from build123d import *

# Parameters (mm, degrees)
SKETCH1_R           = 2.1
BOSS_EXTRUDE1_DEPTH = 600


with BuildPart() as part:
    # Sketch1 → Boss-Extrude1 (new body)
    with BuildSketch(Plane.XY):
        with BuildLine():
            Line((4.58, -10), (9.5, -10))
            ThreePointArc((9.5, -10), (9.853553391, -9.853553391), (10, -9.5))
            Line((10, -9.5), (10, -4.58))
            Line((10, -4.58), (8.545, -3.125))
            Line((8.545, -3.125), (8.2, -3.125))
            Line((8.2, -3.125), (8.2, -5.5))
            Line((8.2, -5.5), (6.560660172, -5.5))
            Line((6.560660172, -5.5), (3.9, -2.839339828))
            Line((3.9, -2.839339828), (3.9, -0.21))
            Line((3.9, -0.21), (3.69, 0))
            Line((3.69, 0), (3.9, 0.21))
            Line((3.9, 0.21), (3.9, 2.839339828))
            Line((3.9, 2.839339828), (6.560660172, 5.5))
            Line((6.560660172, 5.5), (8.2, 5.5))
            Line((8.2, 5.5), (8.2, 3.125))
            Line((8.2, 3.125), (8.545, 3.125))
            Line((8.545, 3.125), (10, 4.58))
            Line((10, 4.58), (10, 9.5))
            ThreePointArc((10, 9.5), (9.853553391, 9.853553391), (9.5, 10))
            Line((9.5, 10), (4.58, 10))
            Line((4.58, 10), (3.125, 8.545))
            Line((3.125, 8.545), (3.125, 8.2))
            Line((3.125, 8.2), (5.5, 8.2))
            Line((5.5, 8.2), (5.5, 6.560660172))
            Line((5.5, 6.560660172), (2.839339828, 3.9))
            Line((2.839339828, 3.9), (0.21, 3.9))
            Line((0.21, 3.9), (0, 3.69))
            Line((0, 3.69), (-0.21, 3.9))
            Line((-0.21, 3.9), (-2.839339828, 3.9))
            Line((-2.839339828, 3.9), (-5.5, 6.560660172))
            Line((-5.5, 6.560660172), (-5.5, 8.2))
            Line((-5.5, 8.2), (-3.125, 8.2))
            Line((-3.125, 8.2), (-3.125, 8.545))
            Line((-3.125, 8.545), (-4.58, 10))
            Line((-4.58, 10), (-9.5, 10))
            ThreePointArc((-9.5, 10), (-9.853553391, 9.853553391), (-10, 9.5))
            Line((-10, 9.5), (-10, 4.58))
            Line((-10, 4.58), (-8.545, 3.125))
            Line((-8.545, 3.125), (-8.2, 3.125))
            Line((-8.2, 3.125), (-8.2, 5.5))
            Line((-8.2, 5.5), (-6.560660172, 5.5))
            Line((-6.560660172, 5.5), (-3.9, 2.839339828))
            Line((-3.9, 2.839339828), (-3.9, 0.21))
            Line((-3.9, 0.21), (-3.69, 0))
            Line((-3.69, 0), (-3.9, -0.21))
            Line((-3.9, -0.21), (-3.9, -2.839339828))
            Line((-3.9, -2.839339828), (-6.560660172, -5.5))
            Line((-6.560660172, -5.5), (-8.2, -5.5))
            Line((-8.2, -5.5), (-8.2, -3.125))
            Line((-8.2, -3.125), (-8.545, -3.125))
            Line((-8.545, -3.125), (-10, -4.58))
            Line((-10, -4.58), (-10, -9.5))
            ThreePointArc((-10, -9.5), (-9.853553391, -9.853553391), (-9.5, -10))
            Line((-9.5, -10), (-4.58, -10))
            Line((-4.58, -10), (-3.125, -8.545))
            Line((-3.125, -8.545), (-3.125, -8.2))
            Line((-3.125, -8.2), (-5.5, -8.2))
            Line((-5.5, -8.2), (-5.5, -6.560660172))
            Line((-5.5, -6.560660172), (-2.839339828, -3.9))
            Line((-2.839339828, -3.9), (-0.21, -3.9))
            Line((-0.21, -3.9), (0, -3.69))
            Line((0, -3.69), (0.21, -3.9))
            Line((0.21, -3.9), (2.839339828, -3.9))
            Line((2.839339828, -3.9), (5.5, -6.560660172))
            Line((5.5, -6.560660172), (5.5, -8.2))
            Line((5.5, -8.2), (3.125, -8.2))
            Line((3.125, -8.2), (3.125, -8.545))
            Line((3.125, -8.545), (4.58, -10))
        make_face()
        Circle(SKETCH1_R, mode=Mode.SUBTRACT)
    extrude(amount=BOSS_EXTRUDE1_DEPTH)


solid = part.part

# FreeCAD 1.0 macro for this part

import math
import FreeCAD as App
import Part
import Sketcher
from FreeCAD import Vector

doc = App.newDocument("Part")
body = doc.addObject("PartDesign::Body", "Body")

# Sketch on XY plane
sketch1 = doc.addObject("Sketcher::SketchObject", "Sketch")
body.addObject(sketch1)
sketch1.AttachmentSupport = (doc.XY_Plane, [""])
sketch1.MapMode = "FlatFace"
sketch1.addGeometry([
    Part.LineSegment(Vector(4.58, -10, 0), Vector(9.5, -10, 0)),  # 0
    Part.ArcOfCircle(Part.Circle(Vector(9.5, -9.5, 0), Vector(0, 0, 1), 0.5), math.radians(-90), math.radians(0)),  # 1
    Part.LineSegment(Vector(10, -9.5, 0), Vector(10, -4.58, 0)),  # 2
    Part.LineSegment(Vector(10, -4.58, 0), Vector(8.54, -3.12, 0)),  # 3
    Part.LineSegment(Vector(8.54, -3.12, 0), Vector(8.2, -3.12, 0)),  # 4
    Part.LineSegment(Vector(8.2, -3.12, 0), Vector(8.2, -5.5, 0)),  # 5
    Part.LineSegment(Vector(8.2, -5.5, 0), Vector(6.56, -5.5, 0)),  # 6
    Part.LineSegment(Vector(6.56, -5.5, 0), Vector(3.9, -2.84, 0)),  # 7
    Part.LineSegment(Vector(3.9, -2.84, 0), Vector(3.9, -0.21, 0)),  # 8
    Part.LineSegment(Vector(3.9, -0.21, 0), Vector(3.69, 0, 0)),  # 9
    Part.LineSegment(Vector(3.69, 0, 0), Vector(3.9, 0.21, 0)),  # 10
    Part.LineSegment(Vector(3.9, 0.21, 0), Vector(3.9, 2.84, 0)),  # 11
    Part.LineSegment(Vector(3.9, 2.84, 0), Vector(6.56, 5.5, 0)),  # 12
    Part.LineSegment(Vector(6.56, 5.5, 0), Vector(8.2, 5.5, 0)),  # 13
    Part.LineSegment(Vector(8.2, 5.5, 0), Vector(8.2, 3.12, 0)),  # 14
    Part.LineSegment(Vector(8.2, 3.12, 0), Vector(8.54, 3.12, 0)),  # 15
    Part.LineSegment(Vector(8.54, 3.12, 0), Vector(10, 4.58, 0)),  # 16
    Part.LineSegment(Vector(10, 4.58, 0), Vector(10, 9.5, 0)),  # 17
    Part.ArcOfCircle(Part.Circle(Vector(9.5, 9.5, 0), Vector(0, 0, 1), 0.5), math.radians(0), math.radians(90)),  # 18
    Part.LineSegment(Vector(9.5, 10, 0), Vector(4.58, 10, 0)),  # 19
    Part.LineSegment(Vector(4.58, 10, 0), Vector(3.12, 8.54, 0)),  # 20
    Part.LineSegment(Vector(3.12, 8.54, 0), Vector(3.12, 8.2, 0)),  # 21
    Part.LineSegment(Vector(3.12, 8.2, 0), Vector(5.5, 8.2, 0)),  # 22
    Part.LineSegment(Vector(5.5, 8.2, 0), Vector(5.5, 6.56, 0)),  # 23
    Part.LineSegment(Vector(5.5, 6.56, 0), Vector(2.84, 3.9, 0)),  # 24
    Part.LineSegment(Vector(2.84, 3.9, 0), Vector(0.21, 3.9, 0)),  # 25
    Part.LineSegment(Vector(0.21, 3.9, 0), Vector(0, 3.69, 0)),  # 26
    Part.LineSegment(Vector(0, 3.69, 0), Vector(-0.21, 3.9, 0)),  # 27
    Part.LineSegment(Vector(-0.21, 3.9, 0), Vector(-2.84, 3.9, 0)),  # 28
    Part.LineSegment(Vector(-2.84, 3.9, 0), Vector(-5.5, 6.56, 0)),  # 29
    Part.LineSegment(Vector(-5.5, 6.56, 0), Vector(-5.5, 8.2, 0)),  # 30
    Part.LineSegment(Vector(-5.5, 8.2, 0), Vector(-3.12, 8.2, 0)),  # 31
    Part.LineSegment(Vector(-3.12, 8.2, 0), Vector(-3.12, 8.54, 0)),  # 32
    Part.LineSegment(Vector(-3.12, 8.54, 0), Vector(-4.58, 10, 0)),  # 33
    Part.LineSegment(Vector(-4.58, 10, 0), Vector(-9.5, 10, 0)),  # 34
    Part.ArcOfCircle(Part.Circle(Vector(-9.5, 9.5, 0), Vector(0, 0, 1), 0.5), math.radians(90), math.radians(180)),  # 35
    Part.LineSegment(Vector(-10, 9.5, 0), Vector(-10, 4.58, 0)),  # 36
    Part.LineSegment(Vector(-10, 4.58, 0), Vector(-8.54, 3.12, 0)),  # 37
    Part.LineSegment(Vector(-8.54, 3.12, 0), Vector(-8.2, 3.12, 0)),  # 38
    Part.LineSegment(Vector(-8.2, 3.12, 0), Vector(-8.2, 5.5, 0)),  # 39
    Part.LineSegment(Vector(-8.2, 5.5, 0), Vector(-6.56, 5.5, 0)),  # 40
    Part.LineSegment(Vector(-6.56, 5.5, 0), Vector(-3.9, 2.84, 0)),  # 41
    Part.LineSegment(Vector(-3.9, 2.84, 0), Vector(-3.9, 0.21, 0)),  # 42
    Part.LineSegment(Vector(-3.9, 0.21, 0), Vector(-3.69, 0, 0)),  # 43
    Part.LineSegment(Vector(-3.69, 0, 0), Vector(-3.9, -0.21, 0)),  # 44
    Part.LineSegment(Vector(-3.9, -0.21, 0), Vector(-3.9, -2.84, 0)),  # 45
    Part.LineSegment(Vector(-3.9, -2.84, 0), Vector(-6.56, -5.5, 0)),  # 46
    Part.LineSegment(Vector(-6.56, -5.5, 0), Vector(-8.2, -5.5, 0)),  # 47
    Part.LineSegment(Vector(-8.2, -5.5, 0), Vector(-8.2, -3.12, 0)),  # 48
    Part.LineSegment(Vector(-8.2, -3.12, 0), Vector(-8.54, -3.12, 0)),  # 49
    Part.LineSegment(Vector(-8.54, -3.12, 0), Vector(-10, -4.58, 0)),  # 50
    Part.LineSegment(Vector(-10, -4.58, 0), Vector(-10, -9.5, 0)),  # 51
    Part.ArcOfCircle(Part.Circle(Vector(-9.5, -9.5, 0), Vector(0, 0, 1), 0.5), math.radians(180), math.radians(270)),  # 52
    Part.LineSegment(Vector(-9.5, -10, 0), Vector(-4.58, -10, 0)),  # 53
    Part.LineSegment(Vector(-4.58, -10, 0), Vector(-3.12, -8.54, 0)),  # 54
    Part.LineSegment(Vector(-3.12, -8.54, 0), Vector(-3.12, -8.2, 0)),  # 55
    Part.LineSegment(Vector(-3.12, -8.2, 0), Vector(-5.5, -8.2, 0)),  # 56
    Part.LineSegment(Vector(-5.5, -8.2, 0), Vector(-5.5, -6.56, 0)),  # 57
    Part.LineSegment(Vector(-5.5, -6.56, 0), Vector(-2.84, -3.9, 0)),  # 58
    Part.LineSegment(Vector(-2.84, -3.9, 0), Vector(-0.21, -3.9, 0)),  # 59
    Part.LineSegment(Vector(-0.21, -3.9, 0), Vector(0, -3.69, 0)),  # 60
    Part.LineSegment(Vector(0, -3.69, 0), Vector(0.21, -3.9, 0)),  # 61
    Part.LineSegment(Vector(0.21, -3.9, 0), Vector(2.84, -3.9, 0)),  # 62
    Part.LineSegment(Vector(2.84, -3.9, 0), Vector(5.5, -6.56, 0)),  # 63
    Part.LineSegment(Vector(5.5, -6.56, 0), Vector(5.5, -8.2, 0)),  # 64
    Part.LineSegment(Vector(5.5, -8.2, 0), Vector(3.12, -8.2, 0)),  # 65
    Part.LineSegment(Vector(3.12, -8.2, 0), Vector(3.12, -8.54, 0)),  # 66
    Part.LineSegment(Vector(3.12, -8.54, 0), Vector(4.58, -10, 0)),  # 67
    Part.Circle(Vector(0, 0, 0), Vector(0, 0, 1), 2.1),  # 68
], False)
sketch1.addConstraint([
    Sketcher.Constraint("Tangent", 0, 2, 1, 1),
    Sketcher.Constraint("Tangent", 1, 2, 2, 1),
    Sketcher.Constraint("Coincident", 2, 2, 3, 1),
    Sketcher.Constraint("Coincident", 3, 2, 4, 1),
    Sketcher.Constraint("Coincident", 4, 2, 5, 1),
    Sketcher.Constraint("Coincident", 5, 2, 6, 1),
    Sketcher.Constraint("Coincident", 6, 2, 7, 1),
    Sketcher.Constraint("Coincident", 7, 2, 8, 1),
    Sketcher.Constraint("Coincident", 8, 2, 9, 1),
    Sketcher.Constraint("Coincident", 9, 2, 10, 1),
    Sketcher.Constraint("Coincident", 10, 2, 11, 1),
    Sketcher.Constraint("Coincident", 11, 2, 12, 1),
    Sketcher.Constraint("Coincident", 12, 2, 13, 1),
    Sketcher.Constraint("Coincident", 13, 2, 14, 1),
    Sketcher.Constraint("Coincident", 14, 2, 15, 1),
    Sketcher.Constraint("Coincident", 15, 2, 16, 1),
    Sketcher.Constraint("Coincident", 16, 2, 17, 1),
    Sketcher.Constraint("Tangent", 17, 2, 18, 1),
    Sketcher.Constraint("Tangent", 18, 2, 19, 1),
    Sketcher.Constraint("Coincident", 19, 2, 20, 1),
    Sketcher.Constraint("Coincident", 20, 2, 21, 1),
    Sketcher.Constraint("Coincident", 21, 2, 22, 1),
    Sketcher.Constraint("Coincident", 22, 2, 23, 1),
    Sketcher.Constraint("Coincident", 23, 2, 24, 1),
    Sketcher.Constraint("Coincident", 24, 2, 25, 1),
    Sketcher.Constraint("Coincident", 25, 2, 26, 1),
    Sketcher.Constraint("Coincident", 26, 2, 27, 1),
    Sketcher.Constraint("Coincident", 27, 2, 28, 1),
    Sketcher.Constraint("Coincident", 28, 2, 29, 1),
    Sketcher.Constraint("Coincident", 29, 2, 30, 1),
    Sketcher.Constraint("Coincident", 30, 2, 31, 1),
    Sketcher.Constraint("Coincident", 31, 2, 32, 1),
    Sketcher.Constraint("Coincident", 32, 2, 33, 1),
    Sketcher.Constraint("Coincident", 33, 2, 34, 1),
    Sketcher.Constraint("Tangent", 34, 2, 35, 1),
    Sketcher.Constraint("Tangent", 35, 2, 36, 1),
    Sketcher.Constraint("Coincident", 36, 2, 37, 1),
    Sketcher.Constraint("Coincident", 37, 2, 38, 1),
    Sketcher.Constraint("Coincident", 38, 2, 39, 1),
    Sketcher.Constraint("Coincident", 39, 2, 40, 1),
    Sketcher.Constraint("Coincident", 40, 2, 41, 1),
    Sketcher.Constraint("Coincident", 41, 2, 42, 1),
    Sketcher.Constraint("Coincident", 42, 2, 43, 1),
    Sketcher.Constraint("Coincident", 43, 2, 44, 1),
    Sketcher.Constraint("Coincident", 44, 2, 45, 1),
    Sketcher.Constraint("Coincident", 45, 2, 46, 1),
    Sketcher.Constraint("Coincident", 46, 2, 47, 1),
    Sketcher.Constraint("Coincident", 47, 2, 48, 1),
    Sketcher.Constraint("Coincident", 48, 2, 49, 1),
    Sketcher.Constraint("Coincident", 49, 2, 50, 1),
    Sketcher.Constraint("Coincident", 50, 2, 51, 1),
    Sketcher.Constraint("Tangent", 51, 2, 52, 1),
    Sketcher.Constraint("Tangent", 52, 2, 53, 1),
    Sketcher.Constraint("Coincident", 53, 2, 54, 1),
    Sketcher.Constraint("Coincident", 54, 2, 55, 1),
    Sketcher.Constraint("Coincident", 55, 2, 56, 1),
    Sketcher.Constraint("Coincident", 56, 2, 57, 1),
    Sketcher.Constraint("Coincident", 57, 2, 58, 1),
    Sketcher.Constraint("Coincident", 58, 2, 59, 1),
    Sketcher.Constraint("Coincident", 59, 2, 60, 1),
    Sketcher.Constraint("Coincident", 60, 2, 61, 1),
    Sketcher.Constraint("Coincident", 61, 2, 62, 1),
    Sketcher.Constraint("Coincident", 62, 2, 63, 1),
    Sketcher.Constraint("Coincident", 63, 2, 64, 1),
    Sketcher.Constraint("Coincident", 64, 2, 65, 1),
    Sketcher.Constraint("Coincident", 65, 2, 66, 1),
    Sketcher.Constraint("Coincident", 66, 2, 67, 1),
    Sketcher.Constraint("Coincident", 67, 2, 0, 1),
    Sketcher.Constraint("Horizontal", 0),
    Sketcher.Constraint("Vertical", 2),
    Sketcher.Constraint("Horizontal", 4),
    Sketcher.Constraint("Vertical", 5),
    Sketcher.Constraint("Horizontal", 6),
    Sketcher.Constraint("Vertical", 8),
    Sketcher.Constraint("Vertical", 11),
    Sketcher.Constraint("Horizontal", 13),
    Sketcher.Constraint("Vertical", 14),
    Sketcher.Constraint("Horizontal", 15),
    Sketcher.Constraint("Vertical", 17),
    Sketcher.Constraint("Horizontal", 19),
    Sketcher.Constraint("Vertical", 21),
    Sketcher.Constraint("Horizontal", 22),
    Sketcher.Constraint("Vertical", 23),
    Sketcher.Constraint("Horizontal", 25),
    Sketcher.Constraint("Horizontal", 28),
    Sketcher.Constraint("Vertical", 30),
    Sketcher.Constraint("Horizontal", 31),
    Sketcher.Constraint("Vertical", 32),
    Sketcher.Constraint("Horizontal", 34),
    Sketcher.Constraint("Vertical", 36),
    Sketcher.Constraint("Horizontal", 38),
    Sketcher.Constraint("Vertical", 39),
    Sketcher.Constraint("Horizontal", 40),
    Sketcher.Constraint("Vertical", 42),
    Sketcher.Constraint("Vertical", 45),
    Sketcher.Constraint("Horizontal", 47),
    Sketcher.Constraint("Vertical", 48),
    Sketcher.Constraint("Horizontal", 49),
    Sketcher.Constraint("Vertical", 51),
    Sketcher.Constraint("Horizontal", 53),
    Sketcher.Constraint("Vertical", 55),
    Sketcher.Constraint("Horizontal", 56),
    Sketcher.Constraint("Vertical", 57),
    Sketcher.Constraint("Horizontal", 59),
    Sketcher.Constraint("Horizontal", 62),
    Sketcher.Constraint("Vertical", 64),
    Sketcher.Constraint("Horizontal", 65),
    Sketcher.Constraint("Vertical", 66),
    Sketcher.Constraint("Coincident", 68, 3, -1, 1),
    Sketcher.Constraint("Equal", 1, 18),
    Sketcher.Constraint("Equal", 18, 35),
    Sketcher.Constraint("Equal", 35, 52),
    Sketcher.Constraint("Symmetric", 1, 3, 35, 3, -1, 1),
    Sketcher.Constraint("Symmetric", 18, 3, 52, 3, -1, 1),
    Sketcher.Constraint("Symmetric", 3, 2, 37, 2, -1, 1),
    Sketcher.Constraint("Symmetric", 5, 2, 39, 2, -1, 1),
    Sketcher.Constraint("Symmetric", 7, 2, 41, 2, -1, 1),
    Sketcher.Constraint("Symmetric", 9, 2, 43, 2, -1, 1),
    Sketcher.Constraint("Symmetric", 10, 2, 44, 2, -1, 1),
    Sketcher.Constraint("Symmetric", 12, 2, 46, 2, -1, 1),
    Sketcher.Constraint("Symmetric", 14, 2, 48, 2, -1, 1),
    Sketcher.Constraint("Symmetric", 20, 2, 54, 2, -1, 1),
    Sketcher.Constraint("Symmetric", 22, 2, 56, 2, -1, 1),
    Sketcher.Constraint("Symmetric", 24, 2, 58, 2, -1, 1),
    Sketcher.Constraint("Symmetric", 26, 2, 60, 2, -1, 1),
    Sketcher.Constraint("Symmetric", 27, 2, 61, 2, -1, 1),
    Sketcher.Constraint("Symmetric", 29, 2, 63, 2, -1, 1),
    Sketcher.Constraint("Symmetric", 31, 2, 65, 2, -1, 1),
    Sketcher.Constraint("Symmetric", 18, 3, 35, 3, -2),
    Sketcher.Constraint("Symmetric", 25, 2, 27, 2, -2),
    Sketcher.Constraint("Symmetric", 23, 2, 29, 2, -2),
    Sketcher.Constraint("Symmetric", 21, 2, 31, 2, -2),
    Sketcher.Constraint("Symmetric", 15, 2, 37, 2, -2),
    Sketcher.Constraint("Symmetric", 13, 2, 39, 2, -2),
    Sketcher.Constraint("Symmetric", 11, 2, 41, 2, -2),
    Sketcher.Constraint("PointOnObject", 9, 2, -1),
    Sketcher.Constraint("PointOnObject", 26, 2, -2),
    Sketcher.Constraint("Parallel", 3, 7),
    Sketcher.Constraint("Parallel", 7, 9),
    Sketcher.Constraint("Perpendicular", 9, 10),
    Sketcher.Constraint("Parallel", 10, 12),
    Sketcher.Constraint("Parallel", 12, 16),
    Sketcher.Constraint("Parallel", 16, 20),
    Sketcher.Constraint("Parallel", 20, 24),
    Sketcher.Constraint("Parallel", 24, 26),
    Sketcher.Constraint("Perpendicular", 26, 27),
    Sketcher.Constraint("Parallel", 27, 29),
    Sketcher.Constraint("Parallel", 29, 33),
    Sketcher.Constraint("Parallel", 33, 37),
    Sketcher.Constraint("Parallel", 37, 41),
    Sketcher.Constraint("Parallel", 41, 43),
    Sketcher.Constraint("Parallel", 44, 46),
    Sketcher.Constraint("Parallel", 46, 50),
    Sketcher.Constraint("Parallel", 50, 54),
    Sketcher.Constraint("Parallel", 54, 58),
    Sketcher.Constraint("Parallel", 58, 60),
    Sketcher.Constraint("Parallel", 61, 63),
    Sketcher.Constraint("Parallel", 63, 67),
    Sketcher.Constraint("Horizontal", 20, 2, 32, 2),
    Sketcher.Constraint("Horizontal", 2, 2, 50, 2),
    Sketcher.Constraint("Horizontal", 54, 2, 66, 2),
    Sketcher.Constraint("Equal", 53, 2),
    Sketcher.Constraint("Equal", 65, 5),
    Sketcher.Constraint("Equal", 62, 8),
    Sketcher.Constraint("Equal", 49, 21),
    Sketcher.Constraint("Equal", 47, 23),
    Sketcher.Constraint("Equal", 16, 20),
    Sketcher.Constraint("Equal", 12, 24),
    Sketcher.Constraint("Equal", 10, 26),
    Sketcher.Constraint("Diameter", 68, 4.2),
    Sketcher.Constraint("Radius", 1, 0.5),
    Sketcher.Constraint("DistanceY", 0, 2, -1, 1, 10.0),
    Sketcher.Constraint("DistanceX", 0, 1, 0, 2, 4.92),
    Sketcher.Constraint("DistanceX", -1, 1, 4, 2, 8.2),
    Sketcher.Constraint("DistanceY", 5, 2, -1, 1, 5.5),
    Sketcher.Constraint("DistanceX", -1, 1, 7, 2, 3.9),
    Sketcher.Constraint("DistanceX", 4, 2, 4, 1, 0.345),
    Sketcher.Constraint("DistanceY", 8, 2, -1, 1, 0.21),
    Sketcher.Constraint("DistanceX", 6, 2, 6, 1, 1.63934),
])
pad1 = doc.addObject("PartDesign::Pad", "Pad")
body.addObject(pad1)
pad1.Profile = sketch1
pad1.Length = 600

doc.recompute()
